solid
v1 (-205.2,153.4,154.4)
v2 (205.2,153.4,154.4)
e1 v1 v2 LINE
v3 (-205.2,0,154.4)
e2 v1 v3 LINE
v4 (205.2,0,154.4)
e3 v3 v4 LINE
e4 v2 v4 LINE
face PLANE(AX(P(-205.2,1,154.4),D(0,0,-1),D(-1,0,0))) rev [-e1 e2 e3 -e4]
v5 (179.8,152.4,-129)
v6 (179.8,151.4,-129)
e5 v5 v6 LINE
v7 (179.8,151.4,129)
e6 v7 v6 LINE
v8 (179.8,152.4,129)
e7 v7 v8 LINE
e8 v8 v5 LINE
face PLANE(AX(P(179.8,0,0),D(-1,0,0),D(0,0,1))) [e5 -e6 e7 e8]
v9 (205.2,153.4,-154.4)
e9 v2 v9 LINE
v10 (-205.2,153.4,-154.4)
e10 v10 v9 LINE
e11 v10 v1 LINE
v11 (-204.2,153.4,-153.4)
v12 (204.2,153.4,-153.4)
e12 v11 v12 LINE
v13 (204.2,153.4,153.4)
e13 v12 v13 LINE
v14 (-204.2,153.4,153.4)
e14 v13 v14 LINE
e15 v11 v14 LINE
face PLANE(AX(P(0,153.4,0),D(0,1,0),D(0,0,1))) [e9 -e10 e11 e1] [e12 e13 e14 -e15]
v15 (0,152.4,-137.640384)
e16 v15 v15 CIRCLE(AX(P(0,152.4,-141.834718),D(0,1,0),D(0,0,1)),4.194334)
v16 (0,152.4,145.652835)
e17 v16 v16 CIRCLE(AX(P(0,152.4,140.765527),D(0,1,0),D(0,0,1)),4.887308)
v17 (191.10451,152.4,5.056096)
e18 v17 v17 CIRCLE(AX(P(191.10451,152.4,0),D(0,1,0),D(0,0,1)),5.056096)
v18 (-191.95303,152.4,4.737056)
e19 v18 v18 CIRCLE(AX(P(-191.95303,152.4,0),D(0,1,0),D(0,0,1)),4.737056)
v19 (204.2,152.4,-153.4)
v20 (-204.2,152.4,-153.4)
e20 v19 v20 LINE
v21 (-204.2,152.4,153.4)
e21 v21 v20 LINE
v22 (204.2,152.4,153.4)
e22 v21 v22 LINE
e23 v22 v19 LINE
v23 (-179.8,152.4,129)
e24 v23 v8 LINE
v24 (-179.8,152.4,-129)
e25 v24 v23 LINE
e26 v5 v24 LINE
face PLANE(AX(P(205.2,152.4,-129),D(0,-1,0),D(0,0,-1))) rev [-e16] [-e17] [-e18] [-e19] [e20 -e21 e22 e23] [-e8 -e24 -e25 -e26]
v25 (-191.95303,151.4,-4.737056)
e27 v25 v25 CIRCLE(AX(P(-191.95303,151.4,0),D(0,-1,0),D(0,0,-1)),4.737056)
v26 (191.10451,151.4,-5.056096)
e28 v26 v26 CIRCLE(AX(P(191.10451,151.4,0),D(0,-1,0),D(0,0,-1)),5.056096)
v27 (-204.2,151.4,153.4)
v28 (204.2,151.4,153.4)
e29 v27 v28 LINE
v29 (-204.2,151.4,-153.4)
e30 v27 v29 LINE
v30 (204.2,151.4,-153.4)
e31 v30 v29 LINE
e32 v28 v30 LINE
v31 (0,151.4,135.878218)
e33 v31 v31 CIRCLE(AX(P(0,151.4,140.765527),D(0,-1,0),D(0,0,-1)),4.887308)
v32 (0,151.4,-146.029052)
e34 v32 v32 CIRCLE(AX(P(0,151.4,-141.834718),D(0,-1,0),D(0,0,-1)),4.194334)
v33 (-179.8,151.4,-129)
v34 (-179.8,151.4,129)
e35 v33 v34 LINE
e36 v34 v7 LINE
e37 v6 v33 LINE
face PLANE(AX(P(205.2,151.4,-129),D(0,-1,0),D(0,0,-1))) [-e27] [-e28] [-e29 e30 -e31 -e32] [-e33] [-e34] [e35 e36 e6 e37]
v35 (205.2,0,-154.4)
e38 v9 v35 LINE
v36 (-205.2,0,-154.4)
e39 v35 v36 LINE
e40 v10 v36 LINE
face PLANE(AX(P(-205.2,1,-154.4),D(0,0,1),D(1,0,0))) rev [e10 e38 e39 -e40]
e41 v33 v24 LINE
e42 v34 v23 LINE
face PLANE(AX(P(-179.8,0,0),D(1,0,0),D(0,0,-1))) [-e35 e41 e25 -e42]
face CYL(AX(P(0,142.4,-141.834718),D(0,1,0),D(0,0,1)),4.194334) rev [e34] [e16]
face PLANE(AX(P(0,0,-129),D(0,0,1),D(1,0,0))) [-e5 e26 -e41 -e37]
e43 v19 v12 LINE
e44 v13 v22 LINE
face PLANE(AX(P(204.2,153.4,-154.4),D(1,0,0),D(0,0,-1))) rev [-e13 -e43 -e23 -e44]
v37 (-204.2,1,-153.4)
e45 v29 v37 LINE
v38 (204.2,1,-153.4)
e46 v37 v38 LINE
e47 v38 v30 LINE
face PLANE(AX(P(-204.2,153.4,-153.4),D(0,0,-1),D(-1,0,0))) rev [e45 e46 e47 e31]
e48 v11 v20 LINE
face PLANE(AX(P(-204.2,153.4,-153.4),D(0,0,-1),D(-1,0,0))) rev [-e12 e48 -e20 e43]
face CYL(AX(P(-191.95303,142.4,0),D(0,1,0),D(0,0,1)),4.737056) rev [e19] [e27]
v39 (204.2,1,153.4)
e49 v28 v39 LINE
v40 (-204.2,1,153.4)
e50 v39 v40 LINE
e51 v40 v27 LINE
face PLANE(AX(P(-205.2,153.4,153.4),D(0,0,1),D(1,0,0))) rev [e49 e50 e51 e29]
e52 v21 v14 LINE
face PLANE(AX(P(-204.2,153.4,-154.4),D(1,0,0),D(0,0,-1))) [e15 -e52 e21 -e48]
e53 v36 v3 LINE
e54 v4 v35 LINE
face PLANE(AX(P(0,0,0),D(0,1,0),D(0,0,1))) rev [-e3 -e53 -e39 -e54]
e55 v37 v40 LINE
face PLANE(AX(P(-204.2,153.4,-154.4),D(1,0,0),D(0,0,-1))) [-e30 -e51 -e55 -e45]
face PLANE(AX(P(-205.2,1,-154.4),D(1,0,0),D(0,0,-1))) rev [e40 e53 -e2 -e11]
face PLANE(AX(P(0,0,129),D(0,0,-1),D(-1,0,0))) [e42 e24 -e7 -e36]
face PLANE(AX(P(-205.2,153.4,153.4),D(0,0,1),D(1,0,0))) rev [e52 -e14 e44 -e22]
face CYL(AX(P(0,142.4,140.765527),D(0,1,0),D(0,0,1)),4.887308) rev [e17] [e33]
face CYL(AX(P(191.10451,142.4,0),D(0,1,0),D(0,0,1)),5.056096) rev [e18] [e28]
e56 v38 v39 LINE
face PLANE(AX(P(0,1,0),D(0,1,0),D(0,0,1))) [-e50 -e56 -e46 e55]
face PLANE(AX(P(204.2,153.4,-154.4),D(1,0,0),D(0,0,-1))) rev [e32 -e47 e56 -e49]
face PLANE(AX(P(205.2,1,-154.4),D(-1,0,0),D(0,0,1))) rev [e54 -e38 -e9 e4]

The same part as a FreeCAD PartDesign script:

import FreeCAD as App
import Part
import Sketcher

doc = App.newDocument("Part")
body = doc.addObject("PartDesign::Body", "Body")

sketch1 = doc.addObject("Sketcher::SketchObject", "Sketch")
body.addObject(sketch1)
sketch1.AttachmentSupport = (doc.XZ_Plane, [""])
sketch1.MapMode = "FlatFace"
sketch1.addGeometry([
    Part.LineSegment(App.Vector(-205, -154, 0), App.Vector(-205, 154, 0)),
    Part.LineSegment(App.Vector(-205, 154, 0), App.Vector(205, 154, 0)),
    Part.LineSegment(App.Vector(205, 154, 0), App.Vector(205, -154, 0)),
    Part.LineSegment(App.Vector(205, -154, 0), App.Vector(-205, -154, 0)),
], False)
sketch1.addConstraint([
    Sketcher.Constraint("Coincident", 0, 2, 1, 1),
    Sketcher.Constraint("Coincident", 1, 2, 2, 1),
    Sketcher.Constraint("Coincident", 2, 2, 3, 1),
    Sketcher.Constraint("Coincident", 3, 2, 0, 1),
    Sketcher.Constraint("Vertical", 0),
    Sketcher.Constraint("Horizontal", 1),
    Sketcher.Constraint("Vertical", 2),
    Sketcher.Constraint("Horizontal", 3),
    Sketcher.Constraint("Symmetric", 0, 2, 2, 2, -1, 1),
    Sketcher.Constraint("DistanceX", 1, 1, 1, 2, 410.4),
    Sketcher.Constraint("DistanceY", 0, 1, 0, 2, 308.8),
])
pad1 = doc.addObject("PartDesign::Pad", "Pad")
body.addObject(pad1)
pad1.Profile = sketch1
pad1.Length = 1
pad1.Reversed = True

sketch2 = doc.addObject("Sketcher::SketchObject", "Sketch001")
body.addObject(sketch2)
sketch2.AttachmentSupport = (doc.XZ_Plane, [""])
sketch2.MapMode = "FlatFace"
sketch2.AttachmentOffset = App.Placement(App.Vector(0, 0, -1), App.Rotation())
sketch2.addGeometry([
    Part.LineSegment(App.Vector(-205.2, 153.4, 0), App.Vector(-205.2, 154.4, 0)),
    Part.LineSegment(App.Vector(-205.2, 154.4, 0), App.Vector(205.2, 154.4, 0)),
    Part.LineSegment(App.Vector(205.2, 154.4, 0), App.Vector(205.2, 153.4, 0)),
    Part.LineSegment(App.Vector(205.2, 153.4, 0), App.Vector(-205.2, 153.4, 0)),
], False)
sketch2.addConstraint([
    Sketcher.Constraint("Coincident", 0, 2, 1, 1),
    Sketcher.Constraint("Coincident", 1, 2, 2, 1),
    Sketcher.Constraint("Coincident", 2, 2, 3, 1),
    Sketcher.Constraint("Coincident", 3, 2, 0, 1),
    Sketcher.Constraint("Vertical", 0),
    Sketcher.Constraint("Horizontal", 1),
    Sketcher.Constraint("Vertical", 2),
    Sketcher.Constraint("Horizontal", 3),
    Sketcher.Constraint("DistanceY", 0, 1, 0, 2, 1.0),
    Sketcher.Constraint("DistanceX", 1, 1, 1, 2, 410.4),
    Sketcher.Constraint("DistanceX", 0, 2, -1, 1, 205.2),
    Sketcher.Constraint("DistanceY", -1, 1, 0, 2, 154.4),
])
pad2 = doc.addObject("PartDesign::Pad", "Pad001")
body.addObject(pad2)
pad2.Profile = sketch2
pad2.Length = 152.4
pad2.Reversed = True

sketch3 = doc.addObject("Sketcher::SketchObject", "Sketch002")
body.addObject(sketch3)
sketch3.AttachmentSupport = (doc.XZ_Plane, [""])
sketch3.MapMode = "FlatFace"
sketch3.AttachmentOffset = App.Placement(App.Vector(0, 0, -1), App.Rotation())
sketch3.addGeometry([
    Part.LineSegment(App.Vector(-205.2, -154.4, 0), App.Vector(-205.2, 154.4, 0)),
    Part.LineSegment(App.Vector(-205.2, 154.4, 0), App.Vector(-204.2, 154.4, 0)),
    Part.LineSegment(App.Vector(-204.2, 154.4, 0), App.Vector(-204.2, -154.4, 0)),
    Part.LineSegment(App.Vector(-204.2, -154.4, 0), App.Vector(-205.2, -154.4, 0)),
], False)
sketch3.addConstraint([
    Sketcher.Constraint("Coincident", 0, 2, 1, 1),
    Sketcher.Constraint("Coincident", 1, 2, 2, 1),
    Sketcher.Constraint("Coincident", 2, 2, 3, 1),
    Sketcher.Constraint("Coincident", 3, 2, 0, 1),
    Sketcher.Constraint("Vertical", 0),
    Sketcher.Constraint("Horizontal", 1),
    Sketcher.Constraint("Vertical", 2),
    Sketcher.Constraint("Horizontal", 3),
    Sketcher.Constraint("DistanceX", 1, 1, 1, 2, 1.0),
    Sketcher.Constraint("DistanceY", 0, 1, 0, 2, 308.8),
    Sketcher.Constraint("DistanceX", 0, 2, -1, 1, 205.2),
    Sketcher.Constraint("DistanceY", -1, 1, 0, 2, 154.4),
])
pad3 = doc.addObject("PartDesign::Pad", "Pad002")
body.addObject(pad3)
pad3.Profile = sketch3
pad3.Length = 152.4
pad3.Reversed = True

sketch4 = doc.addObject("Sketcher::SketchObject", "Sketch003")
body.addObject(sketch4)
sketch4.AttachmentSupport = (doc.XZ_Plane, [""])
sketch4.MapMode = "FlatFace"
sketch4.AttachmentOffset = App.Placement(App.Vector(0, 0, -1), App.Rotation())
sketch4.addGeometry([
    Part.LineSegment(App.Vector(204.2, -153.4, 0), App.Vector(204.2, 153.4, 0)),
    Part.LineSegment(App.Vector(204.2, 153.4, 0), App.Vector(205.2, 153.4, 0)),
    Part.LineSegment(App.Vector(205.2, 153.4, 0), App.Vector(205.2, -154.4, 0)),
    Part.LineSegment(App.Vector(205.2, -154.4, 0), App.Vector(-204.2, -154.4, 0)),
    Part.LineSegment(App.Vector(-204.2, -154.4, 0), App.Vector(-204.2, -153.4, 0)),
    Part.LineSegment(App.Vector(-204.2, -153.4, 0), App.Vector(204.2, -153.4, 0)),
], False)
sketch4.addConstraint([
    Sketcher.Constraint("Coincident", 0, 2, 1, 1),
    Sketcher.Constraint("Coincident", 1, 2, 2, 1),
    Sketcher.Constraint("Coincident", 2, 2, 3, 1),
    Sketcher.Constraint("Coincident", 3, 2, 4, 1),
    Sketcher.Constraint("Coincident", 4, 2, 5, 1),
    Sketcher.Constraint("Coincident", 5, 2, 0, 1),
    Sketcher.Constraint("Vertical", 0),
    Sketcher.Constraint("Horizontal", 1),
    Sketcher.Constraint("Vertical", 2),
    Sketcher.Constraint("Horizontal", 3),
    Sketcher.Constraint("Vertical", 4),
    Sketcher.Constraint("Horizontal", 5),
    Sketcher.Constraint("Symmetric", 0, 2, 4, 2, -1, 1),
    Sketcher.Constraint("Equal", 1, 4),
    Sketcher.Constraint("DistanceX", 1, 1, 1, 2, 1.0),
    Sketcher.Constraint("DistanceX", 3, 2, 3, 1, 409.4),
    Sketcher.Constraint("DistanceY", 0, 1, 0, 2, 306.8),
])
pad4 = doc.addObject("PartDesign::Pad", "Pad003")
body.addObject(pad4)
pad4.Profile = sketch4
pad4.Length = 152.4
pad4.Reversed = True

sketch5 = doc.addObject("Sketcher::SketchObject", "Sketch004")
body.addObject(sketch5)
sketch5.AttachmentSupport = (doc.XY_Plane, [""])
sketch5.MapMode = "FlatFace"
sketch5.AttachmentOffset = App.Placement(App.Vector(0, 0, -154.4), App.Rotation())
sketch5.addGeometry([
    Part.LineSegment(App.Vector(205.2, 152.4, 0), App.Vector(205.2, 151.4, 0)),
    Part.LineSegment(App.Vector(205.2, 151.4, 0), App.Vector(-205.2, 151.4, 0)),
    Part.LineSegment(App.Vector(-205.2, 151.4, 0), App.Vector(-205.2, 152.4, 0)),
    Part.LineSegment(App.Vector(-205.2, 152.4, 0), App.Vector(205.2, 152.4, 0)),
], False)
sketch5.addConstraint([
    Sketcher.Constraint("Coincident", 0, 2, 1, 1),
    Sketcher.Constraint("Coincident", 1, 2, 2, 1),
    Sketcher.Constraint("Coincident", 2, 2, 3, 1),
    Sketcher.Constraint("Coincident", 3, 2, 0, 1),
    Sketcher.Constraint("Vertical", 0),
    Sketcher.Constraint("Horizontal", 1),
    Sketcher.Constraint("Vertical", 2),
    Sketcher.Constraint("Horizontal", 3),
    Sketcher.Constraint("DistanceY", 0, 2, 0, 1, 1.0),
    Sketcher.Constraint("DistanceX", 1, 2, 1, 1, 410.4),
    Sketcher.Constraint("DistanceX", -1, 1, 0, 2, 205.2),
    Sketcher.Constraint("DistanceY", -1, 1, 0, 2, 151.4),
])
pad5 = doc.addObject("PartDesign::Pad", "Pad004")
body.addObject(pad5)
pad5.Profile = sketch5
pad5.Length = 25.4

sketch6 = doc.addObject("Sketcher::SketchObject", "Sketch005")
body.addObject(sketch6)
sketch6.AttachmentSupport = (doc.YZ_Plane, [""])
sketch6.MapMode = "FlatFace"
sketch6.AttachmentOffset = App.Placement(App.Vector(0, 0, -205.2), App.Rotation())
sketch6.addGeometry([
    Part.LineSegment(App.Vector(152.4, -154.4, 0), App.Vector(151.4, -154.4, 0)),
    Part.LineSegment(App.Vector(151.4, -154.4, 0), App.Vector(151.4, 154.4, 0)),
    Part.LineSegment(App.Vector(151.4, 154.4, 0), App.Vector(152.4, 154.4, 0)),
    Part.LineSegment(App.Vector(152.4, 154.4, 0), App.Vector(152.4, -154.4, 0)),
], False)
sketch6.addConstraint([
    Sketcher.Constraint("Coincident", 0, 2, 1, 1),
    Sketcher.Constraint("Coincident", 1, 2, 2, 1),
    Sketcher.Constraint("Coincident", 2, 2, 3, 1),
    Sketcher.Constraint("Coincident", 3, 2, 0, 1),
    Sketcher.Constraint("Horizontal", 0),
    Sketcher.Constraint("Vertical", 1),
    Sketcher.Constraint("Horizontal", 2),
    Sketcher.Constraint("Vertical", 3),
    Sketcher.Constraint("DistanceX", 0, 2, 0, 1, 1.0),
    Sketcher.Constraint("DistanceY", 1, 1, 1, 2, 308.8),
    Sketcher.Constraint("DistanceX", -1, 1, 0, 2, 151.4),
    Sketcher.Constraint("DistanceY", 0, 2, -1, 1, 154.4),
])
pad6 = doc.addObject("PartDesign::Pad", "Pad005")
body.addObject(pad6)
pad6.Profile = sketch6
pad6.Length = 25.4

sketch7 = doc.addObject("Sketcher::SketchObject", "Sketch006")
body.addObject(sketch7)
sketch7.AttachmentSupport = (doc.XY_Plane, [""])
sketch7.MapMode = "FlatFace"
sketch7.AttachmentOffset = App.Placement(App.Vector(0, 0, 154.4), App.Rotation())
sketch7.addGeometry([
    Part.LineSegment(App.Vector(-205.2, 152.4, 0), App.Vector(-205.2, 151.4, 0)),
    Part.LineSegment(App.Vector(-205.2, 151.4, 0), App.Vector(205.2, 151.4, 0)),
    Part.LineSegment(App.Vector(205.2, 151.4, 0), App.Vector(205.2, 152.4, 0)),
    Part.LineSegment(App.Vector(205.2, 152.4, 0), App.Vector(-205.2, 152.4, 0)),
], False)
sketch7.addConstraint([
    Sketcher.Constraint("Coincident", 0, 2, 1, 1),
    Sketcher.Constraint("Coincident", 1, 2, 2, 1),
    Sketcher.Constraint("Coincident", 2, 2, 3, 1),
    Sketcher.Constraint("Coincident", 3, 2, 0, 1),
    Sketcher.Constraint("Vertical", 0),
    Sketcher.Constraint("Horizontal", 1),
    Sketcher.Constraint("Vertical", 2),
    Sketcher.Constraint("Horizontal", 3),
    Sketcher.Constraint("DistanceY", 0, 2, 0, 1, 1.0),
    Sketcher.Constraint("DistanceX", 1, 1, 1, 2, 410.4),
    Sketcher.Constraint("DistanceX", 0, 2, -1, 1, 205.2),
    Sketcher.Constraint("DistanceY", -1, 1, 0, 2, 151.4),
])
pad7 = doc.addObject("PartDesign::Pad", "Pad006")
body.addObject(pad7)
pad7.Profile = sketch7
pad7.Length = 25.4
pad7.Reversed = True

sketch8 = doc.addObject("Sketcher::SketchObject", "Sketch007")
body.addObject(sketch8)
sketch8.AttachmentSupport = (doc.YZ_Plane, [""])
sketch8.MapMode = "FlatFace"
sketch8.AttachmentOffset = App.Placement(App.Vector(0, 0, 205.2), App.Rotation())
sketch8.addGeometry([
    Part.LineSegment(App.Vector(152.4, 154.4, 0), App.Vector(151.4, 154.4, 0)),
    Part.LineSegment(App.Vector(151.4, 154.4, 0), App.Vector(151.4, -154.4, 0)),
    Part.LineSegment(App.Vector(151.4, -154.4, 0), App.Vector(152.4, -154.4, 0)),
    Part.LineSegment(App.Vector(152.4, -154.4, 0), App.Vector(152.4, 154.4, 0)),
], False)
sketch8.addConstraint([
    Sketcher.Constraint("Coincident", 0, 2, 1, 1),
    Sketcher.Constraint("Coincident", 1, 2, 2, 1),
    Sketcher.Constraint("Coincident", 2, 2, 3, 1),
    Sketcher.Constraint("Coincident", 3, 2, 0, 1),
    Sketcher.Constraint("Horizontal", 0),
    Sketcher.Constraint("Vertical", 1),
    Sketcher.Constraint("Horizontal", 2),
    Sketcher.Constraint("Vertical", 3),
    Sketcher.Constraint("DistanceX", 0, 2, 0, 1, 1.0),
    Sketcher.Constraint("DistanceY", 1, 2, 1, 1, 308.8),
    Sketcher.Constraint("DistanceX", -1, 1, 0, 2, 151.4),
    Sketcher.Constraint("DistanceY", -1, 1, 0, 2, 154.4),
])
pad8 = doc.addObject("PartDesign::Pad", "Pad007")
body.addObject(pad8)
pad8.Profile = sketch8
pad8.Length = 25.4
pad8.Reversed = True

sketch9 = doc.addObject("Sketcher::SketchObject", "Sketch008")
body.addObject(sketch9)
sketch9.AttachmentSupport = (doc.XZ_Plane, [""])
sketch9.MapMode = "FlatFace"
sketch9.AttachmentOffset = App.Placement(App.Vector(0, 0, -152.4), App.Rotation())
sketch9.addGeometry([
    Part.Circle(App.Vector(191.1, 0, 0), App.Vector(0, 0, 1), 5.1),
    Part.Circle(App.Vector(-192, 0, 0), App.Vector(0, 0, 1), 4.7),
    Part.Circle(App.Vector(0, -141.8, 0), App.Vector(0, 0, 1), 4.2),
    Part.Circle(App.Vector(0, 140.8, 0), App.Vector(0, 0, 1), 4.9),
], False)
sketch9.addConstraint([
    Sketcher.Constraint("PointOnObject", 0, 3, -1),
    Sketcher.Constraint("PointOnObject", 1, 3, -1),
    Sketcher.Constraint("PointOnObject", 2, 3, -2),
    Sketcher.Constraint("PointOnObject", 3, 3, -2),
    Sketcher.Constraint("Diameter", 0, 10.112192),
    Sketcher.Constraint("Diameter", 2, 8.388668),
    Sketcher.Constraint("Diameter", 1, 9.474113),
    Sketcher.Constraint("Diameter", 3, 9.774617),
    Sketcher.Constraint("DistanceX", -1, 1, 0, 3, 191.10451),
    Sketcher.Constraint("DistanceX", 1, 3, -1, 1, 191.95303),
    Sketcher.Constraint("DistanceY", 2, 3, -1, 1, 141.834718),
    Sketcher.Constraint("DistanceY", -1, 1, 3, 3, 140.765527),
])
pocket1 = doc.addObject("PartDesign::Pocket", "Pocket")
body.addObject(pocket1)
pocket1.Profile = sketch9
pocket1.Length = 10
pocket1.Reversed = True

doc.recompute()
